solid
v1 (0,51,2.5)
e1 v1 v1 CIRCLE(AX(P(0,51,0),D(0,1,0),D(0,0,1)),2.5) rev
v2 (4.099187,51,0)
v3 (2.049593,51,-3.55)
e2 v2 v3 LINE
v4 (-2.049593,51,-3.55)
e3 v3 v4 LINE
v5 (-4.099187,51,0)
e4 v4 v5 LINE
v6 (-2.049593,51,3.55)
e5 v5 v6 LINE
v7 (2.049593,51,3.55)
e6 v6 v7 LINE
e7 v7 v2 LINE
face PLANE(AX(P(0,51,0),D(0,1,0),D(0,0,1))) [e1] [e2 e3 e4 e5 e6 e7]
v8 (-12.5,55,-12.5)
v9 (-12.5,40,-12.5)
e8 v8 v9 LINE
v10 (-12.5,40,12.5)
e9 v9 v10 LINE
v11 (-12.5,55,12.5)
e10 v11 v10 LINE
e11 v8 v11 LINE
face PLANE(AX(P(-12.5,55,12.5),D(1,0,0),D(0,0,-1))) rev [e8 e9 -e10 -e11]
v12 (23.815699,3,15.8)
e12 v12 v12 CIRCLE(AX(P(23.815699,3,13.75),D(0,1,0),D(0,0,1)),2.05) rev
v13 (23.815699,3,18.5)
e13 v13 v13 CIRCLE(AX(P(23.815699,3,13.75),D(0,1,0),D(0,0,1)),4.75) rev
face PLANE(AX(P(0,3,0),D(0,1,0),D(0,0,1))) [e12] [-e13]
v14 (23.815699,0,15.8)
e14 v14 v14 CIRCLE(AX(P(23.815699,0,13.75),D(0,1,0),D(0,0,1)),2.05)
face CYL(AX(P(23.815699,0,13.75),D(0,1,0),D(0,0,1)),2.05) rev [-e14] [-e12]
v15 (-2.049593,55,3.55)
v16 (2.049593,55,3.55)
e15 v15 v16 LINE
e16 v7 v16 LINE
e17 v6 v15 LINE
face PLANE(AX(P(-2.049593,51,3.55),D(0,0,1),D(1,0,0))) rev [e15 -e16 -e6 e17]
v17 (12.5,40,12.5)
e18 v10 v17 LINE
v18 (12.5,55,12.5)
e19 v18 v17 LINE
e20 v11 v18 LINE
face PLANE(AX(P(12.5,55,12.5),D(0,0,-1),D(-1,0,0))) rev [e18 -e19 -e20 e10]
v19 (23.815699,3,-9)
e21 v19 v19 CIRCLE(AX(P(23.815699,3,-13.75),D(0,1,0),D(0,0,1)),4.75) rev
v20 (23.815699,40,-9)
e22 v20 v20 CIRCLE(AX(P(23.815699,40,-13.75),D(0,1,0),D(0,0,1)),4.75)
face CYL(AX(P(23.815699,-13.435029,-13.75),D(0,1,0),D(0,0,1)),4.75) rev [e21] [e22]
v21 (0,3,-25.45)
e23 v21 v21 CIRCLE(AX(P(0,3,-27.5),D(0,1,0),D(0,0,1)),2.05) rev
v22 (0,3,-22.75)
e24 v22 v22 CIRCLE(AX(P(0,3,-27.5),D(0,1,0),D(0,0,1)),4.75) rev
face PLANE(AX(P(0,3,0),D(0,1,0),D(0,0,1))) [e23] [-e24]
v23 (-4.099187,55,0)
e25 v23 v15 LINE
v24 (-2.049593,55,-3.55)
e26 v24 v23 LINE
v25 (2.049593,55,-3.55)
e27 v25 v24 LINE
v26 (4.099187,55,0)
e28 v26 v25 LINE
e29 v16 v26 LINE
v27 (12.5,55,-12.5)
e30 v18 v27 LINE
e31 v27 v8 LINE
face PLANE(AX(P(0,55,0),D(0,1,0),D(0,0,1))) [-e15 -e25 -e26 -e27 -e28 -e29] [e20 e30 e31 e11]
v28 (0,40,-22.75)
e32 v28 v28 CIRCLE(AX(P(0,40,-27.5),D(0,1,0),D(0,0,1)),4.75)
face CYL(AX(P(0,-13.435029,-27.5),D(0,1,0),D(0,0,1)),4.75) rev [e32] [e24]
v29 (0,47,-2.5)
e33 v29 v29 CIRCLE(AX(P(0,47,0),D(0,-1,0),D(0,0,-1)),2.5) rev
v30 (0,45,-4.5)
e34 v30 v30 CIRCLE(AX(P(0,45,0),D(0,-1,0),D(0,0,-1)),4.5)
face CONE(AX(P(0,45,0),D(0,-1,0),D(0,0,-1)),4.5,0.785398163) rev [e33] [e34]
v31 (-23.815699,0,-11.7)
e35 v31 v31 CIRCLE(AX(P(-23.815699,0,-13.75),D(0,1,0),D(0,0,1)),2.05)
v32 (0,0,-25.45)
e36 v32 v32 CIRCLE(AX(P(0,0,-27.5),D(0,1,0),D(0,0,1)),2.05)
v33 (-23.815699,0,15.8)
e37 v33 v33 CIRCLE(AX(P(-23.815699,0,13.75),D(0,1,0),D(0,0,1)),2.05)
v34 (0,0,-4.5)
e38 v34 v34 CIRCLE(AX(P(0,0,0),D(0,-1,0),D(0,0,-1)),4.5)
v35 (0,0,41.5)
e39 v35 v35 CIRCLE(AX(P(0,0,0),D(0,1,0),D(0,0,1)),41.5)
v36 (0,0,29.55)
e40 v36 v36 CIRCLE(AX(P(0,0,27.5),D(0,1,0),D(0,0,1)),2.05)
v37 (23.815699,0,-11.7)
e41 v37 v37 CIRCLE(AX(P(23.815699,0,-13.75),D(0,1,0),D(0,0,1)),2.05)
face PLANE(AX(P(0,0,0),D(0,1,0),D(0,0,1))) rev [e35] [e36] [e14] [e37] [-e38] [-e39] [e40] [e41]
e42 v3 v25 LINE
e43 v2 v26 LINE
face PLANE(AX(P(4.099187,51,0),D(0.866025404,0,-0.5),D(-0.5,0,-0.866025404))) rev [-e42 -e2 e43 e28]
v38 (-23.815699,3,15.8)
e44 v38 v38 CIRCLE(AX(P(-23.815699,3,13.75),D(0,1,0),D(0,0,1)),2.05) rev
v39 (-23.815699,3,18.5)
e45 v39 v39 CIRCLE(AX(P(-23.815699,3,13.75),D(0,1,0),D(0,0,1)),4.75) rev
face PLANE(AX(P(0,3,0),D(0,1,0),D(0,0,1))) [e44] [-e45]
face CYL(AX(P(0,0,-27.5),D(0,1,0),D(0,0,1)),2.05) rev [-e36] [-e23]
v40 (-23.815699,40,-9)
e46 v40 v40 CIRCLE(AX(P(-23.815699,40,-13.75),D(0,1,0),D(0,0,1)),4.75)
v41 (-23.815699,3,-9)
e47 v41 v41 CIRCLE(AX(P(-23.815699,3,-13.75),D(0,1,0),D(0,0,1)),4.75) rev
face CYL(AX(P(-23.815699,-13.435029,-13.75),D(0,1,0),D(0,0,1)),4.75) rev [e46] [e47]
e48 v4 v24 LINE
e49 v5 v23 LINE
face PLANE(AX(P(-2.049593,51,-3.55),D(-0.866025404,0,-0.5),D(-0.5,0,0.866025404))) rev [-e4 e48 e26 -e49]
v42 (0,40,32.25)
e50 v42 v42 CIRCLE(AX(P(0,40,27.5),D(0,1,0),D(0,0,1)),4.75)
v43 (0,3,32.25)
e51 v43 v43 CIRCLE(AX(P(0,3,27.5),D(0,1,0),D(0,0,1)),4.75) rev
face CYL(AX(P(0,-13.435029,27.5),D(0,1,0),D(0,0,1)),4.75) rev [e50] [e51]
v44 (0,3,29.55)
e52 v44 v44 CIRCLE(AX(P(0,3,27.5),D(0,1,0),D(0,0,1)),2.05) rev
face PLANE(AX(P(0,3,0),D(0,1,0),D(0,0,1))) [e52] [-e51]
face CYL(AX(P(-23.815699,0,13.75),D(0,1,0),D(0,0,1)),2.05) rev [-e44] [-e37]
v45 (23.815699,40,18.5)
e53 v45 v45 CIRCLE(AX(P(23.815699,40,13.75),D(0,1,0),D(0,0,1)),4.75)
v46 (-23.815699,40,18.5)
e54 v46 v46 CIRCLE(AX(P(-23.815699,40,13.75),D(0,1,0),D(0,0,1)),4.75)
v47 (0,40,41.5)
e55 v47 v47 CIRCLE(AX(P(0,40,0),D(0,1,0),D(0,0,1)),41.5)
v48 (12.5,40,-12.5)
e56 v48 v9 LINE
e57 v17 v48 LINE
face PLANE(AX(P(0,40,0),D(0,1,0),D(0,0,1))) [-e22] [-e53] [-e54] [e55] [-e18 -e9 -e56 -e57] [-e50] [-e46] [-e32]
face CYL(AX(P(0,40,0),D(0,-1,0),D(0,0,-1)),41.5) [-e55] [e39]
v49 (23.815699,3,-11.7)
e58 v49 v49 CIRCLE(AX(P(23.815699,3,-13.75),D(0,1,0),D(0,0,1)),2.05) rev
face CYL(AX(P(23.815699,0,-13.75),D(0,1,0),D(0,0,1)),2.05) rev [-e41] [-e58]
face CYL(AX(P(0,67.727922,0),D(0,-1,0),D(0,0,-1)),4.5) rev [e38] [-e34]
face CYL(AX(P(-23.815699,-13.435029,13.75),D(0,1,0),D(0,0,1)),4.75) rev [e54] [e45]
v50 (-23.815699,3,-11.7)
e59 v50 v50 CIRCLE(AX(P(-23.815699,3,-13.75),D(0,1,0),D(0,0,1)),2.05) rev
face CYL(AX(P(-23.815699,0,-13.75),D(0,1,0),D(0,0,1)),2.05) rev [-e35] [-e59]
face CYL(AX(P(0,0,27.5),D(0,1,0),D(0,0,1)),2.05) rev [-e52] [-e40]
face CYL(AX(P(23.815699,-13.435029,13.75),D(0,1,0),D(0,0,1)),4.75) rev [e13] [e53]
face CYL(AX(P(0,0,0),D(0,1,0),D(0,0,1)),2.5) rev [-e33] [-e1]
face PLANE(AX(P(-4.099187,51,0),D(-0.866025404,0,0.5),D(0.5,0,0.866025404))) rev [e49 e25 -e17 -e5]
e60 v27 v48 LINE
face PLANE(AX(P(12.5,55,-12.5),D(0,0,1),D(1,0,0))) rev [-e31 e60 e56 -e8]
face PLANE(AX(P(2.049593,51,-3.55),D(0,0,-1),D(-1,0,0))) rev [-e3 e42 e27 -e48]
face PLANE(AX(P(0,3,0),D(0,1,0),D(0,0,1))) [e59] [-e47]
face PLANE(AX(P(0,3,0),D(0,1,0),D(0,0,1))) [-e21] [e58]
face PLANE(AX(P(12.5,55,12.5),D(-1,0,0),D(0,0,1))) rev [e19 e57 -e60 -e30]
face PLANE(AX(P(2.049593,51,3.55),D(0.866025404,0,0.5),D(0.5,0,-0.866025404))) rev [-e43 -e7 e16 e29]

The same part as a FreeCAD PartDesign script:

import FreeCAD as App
import Part
import Sketcher
Q = App.Units.Quantity


def add_polygon(sketch, points):
    """Adds a closed chain of lines whose ends are joined by coincident constraints."""
    first, n = sketch.GeometryCount, len(points)
    for a, b in zip(points, points[1:] + points[:1]):
        sketch.addGeometry(Part.LineSegment(App.Vector(*a, 0), App.Vector(*b, 0)), False)
    for i in range(n):
        sketch.addConstraint(Sketcher.Constraint("Coincident", first + i, 2, first + (i + 1) % n, 1))

doc = App.newDocument("Part")
body = doc.addObject("PartDesign::Body", "Body")

sketch1 = body.newObject("Sketcher::SketchObject", "Sketch")
sketch1.AttachmentSupport = (doc.getObject("XZ_Plane"), [""])
sketch1.MapMode = "FlatFace"
sketch1.addGeometry(Part.Circle(App.Vector(0, 0, 0), App.Vector(0, 0, 1), 42), False)
sketch1.addConstraint([
    Sketcher.Constraint("Coincident", 0, 3, -1, 1),
    Sketcher.Constraint("Diameter", 0, 83.0),
])
pad1 = body.newObject("PartDesign::Pad", "Pad")
pad1.Profile = sketch1
pad1.Length = 40
pad1.Reversed = True

sketch2 = body.newObject("Sketcher::SketchObject", "Sketch001")
sketch2.AttachmentSupport = (doc.getObject("XZ_Plane"), [""])
sketch2.MapMode = "FlatFace"
sketch2.AttachmentOffset = App.Placement(App.Vector(0, 0, -40), App.Rotation())
sketch2.addGeometry([
    Part.Circle(App.Vector(0, -27.5, 0), App.Vector(0, 0, 1), 2),
    Part.Circle(App.Vector(23.8, -13.8, 0), App.Vector(0, 0, 1), 2),
    Part.Circle(App.Vector(23.8, 13.8, 0), App.Vector(0, 0, 1), 2),
    Part.Circle(App.Vector(0, 27.5, 0), App.Vector(0, 0, 1), 2),
    Part.Circle(App.Vector(-23.8, 13.8, 0), App.Vector(0, 0, 1), 2),
    Part.Circle(App.Vector(-23.8, -13.8, 0), App.Vector(0, 0, 1), 2),
], False)
sketch2.addConstraint([
    Sketcher.Constraint("Equal", 0, 1),
    Sketcher.Constraint("Equal", 1, 2),
    Sketcher.Constraint("Equal", 2, 3),
    Sketcher.Constraint("Equal", 3, 4),
    Sketcher.Constraint("Equal", 4, 5),
    Sketcher.Constraint("Symmetric", 0, 3, 3, 3, -1, 1),
    Sketcher.Constraint("Symmetric", 1, 3, 4, 3, -1, 1),
    Sketcher.Constraint("Symmetric", 2, 3, 5, 3, -1, 1),
    Sketcher.Constraint("Symmetric", 2, 3, 4, 3, -2),
    Sketcher.Constraint("PointOnObject", 0, 3, -2),
    Sketcher.Constraint("Diameter", 0, 4.1),
    Sketcher.Constraint("DistanceY", 0, 3, 3, 3, 55.0),
    Sketcher.Constraint("DistanceY", 1, 3, 2, 3, 27.5),
    Sketcher.Constraint("DistanceX", -1, 1, 1, 3, 23.815699),
])
pocket1 = body.newObject("PartDesign::Pocket", "Pocket")
pocket1.Profile = sketch2
pocket1.Type = "ThroughAll"
pocket1.Reversed = True

sketch3 = body.newObject("Sketcher::SketchObject", "Sketch002")
sketch3.AttachmentSupport = (doc.getObject("XZ_Plane"), [""])
sketch3.MapMode = "FlatFace"
sketch3.AttachmentOffset = App.Placement(App.Vector(0, 0, -40), App.Rotation())
sketch3.addGeometry([
    Part.Circle(App.Vector(0, -27.5, 0), App.Vector(0, 0, 1), 4.8),
    Part.Circle(App.Vector(23.8, -13.8, 0), App.Vector(0, 0, 1), 4.8),
    Part.Circle(App.Vector(23.8, 13.8, 0), App.Vector(0, 0, 1), 4.8),
    Part.Circle(App.Vector(0, 27.5, 0), App.Vector(0, 0, 1), 4.8),
    Part.Circle(App.Vector(-23.8, 13.8, 0), App.Vector(0, 0, 1), 4.8),
    Part.Circle(App.Vector(-23.8, -13.8, 0), App.Vector(0, 0, 1), 4.8),
], False)
sketch3.addConstraint([
    Sketcher.Constraint("Equal", 0, 1),
    Sketcher.Constraint("Equal", 1, 2),
    Sketcher.Constraint("Equal", 2, 3),
    Sketcher.Constraint("Equal", 3, 4),
    Sketcher.Constraint("Equal", 4, 5),
    Sketcher.Constraint("Symmetric", 0, 3, 3, 3, -1, 1),
    Sketcher.Constraint("Symmetric", 1, 3, 4, 3, -1, 1),
    Sketcher.Constraint("Symmetric", 2, 3, 5, 3, -1, 1),
    Sketcher.Constraint("Symmetric", 2, 3, 4, 3, -2),
    Sketcher.Constraint("PointOnObject", 0, 3, -2),
    Sketcher.Constraint("Diameter", 0, 9.5),
    Sketcher.Constraint("DistanceY", 0, 3, 3, 3, 55.0),
    Sketcher.Constraint("DistanceY", 1, 3, 2, 3, 27.5),
    Sketcher.Constraint("DistanceX", -1, 1, 1, 3, 23.815699),
])
pocket2 = body.newObject("PartDesign::Pocket", "Pocket001")
pocket2.Profile = sketch3
pocket2.Length = 37
pocket2.Reversed = True

sketch4 = body.newObject("Sketcher::SketchObject", "Sketch003")
sketch4.AttachmentSupport = (doc.getObject("XZ_Plane"), [""])
sketch4.MapMode = "FlatFace"
sketch4.AttachmentOffset = App.Placement(App.Vector(0, 0, -40), App.Rotation())
add_polygon(sketch4, [(-12, -12), (-12, 12), (12, 12), (12, -12)])
sketch4.addConstraint([
    Sketcher.Constraint("Vertical", 0),
    Sketcher.Constraint("Horizontal", 1),
    Sketcher.Constraint("Vertical", 2),
    Sketcher.Constraint("Horizontal", 3),
    Sketcher.Constraint("Symmetric", 0, 2, 2, 2, -1, 1),
    Sketcher.Constraint("Equal", 3, 0),
    Sketcher.Constraint("DistanceX", 1, 1, 1, 2, 25.0),
])
pad2 = body.newObject("PartDesign::Pad", "Pad001")
pad2.Profile = sketch4
pad2.Length = 15
pad2.Reversed = True

sketch5 = body.newObject("Sketcher::SketchObject", "Sketch004")
sketch5.AttachmentSupport = (doc.getObject("XZ_Plane"), [""])
sketch5.MapMode = "FlatFace"
sketch5.addGeometry(Part.Circle(App.Vector(0, 0, 0), App.Vector(0, 0, 1), 4.5), False)
sketch5.addConstraint([
    Sketcher.Constraint("Coincident", 0, 3, -1, 1),
    Sketcher.Constraint("Diameter", 0, 9.0),
])
pocket3 = body.newObject("PartDesign::Pocket", "Pocket002")
pocket3.Profile = sketch5
pocket3.Length = 45

sketch6 = body.newObject("Sketcher::SketchObject", "Sketch005")
sketch6.AttachmentSupport = (doc.getObject("YZ_Plane"), [""])
sketch6.MapMode = "FlatFace"
add_polygon(sketch6, [(45, 0), (45, -4.5), (49.5, 0)])
sketch6.addConstraint([
    Sketcher.Constraint("Vertical", 0),
    Sketcher.Constraint("Horizontal", 2),
    Sketcher.Constraint("PointOnObject", 1, 2, -1),
    Sketcher.Constraint("Equal", 2, 0),
    Sketcher.Constraint("DistanceX", 2, 2, 2, 1, 4.5),
    Sketcher.Constraint("DistanceX", -1, 1, 0, 2, 45.0),
])
groove = body.newObject("PartDesign::Groove", "Groove")
groove.Profile = sketch6
groove.ReferenceAxis = (sketch6, ["H_Axis"])
groove.Angle = 360

sketch7 = body.newObject("Sketcher::SketchObject", "Sketch006")
sketch7.AttachmentSupport = (doc.getObject("XZ_Plane"), [""])
sketch7.MapMode = "FlatFace"
sketch7.AttachmentOffset = App.Placement(App.Vector(0, 0, -55), App.Rotation())
sketch7.addGeometry(Part.Circle(App.Vector(0, 0, 0), App.Vector(0, 0, 1), 2.5), False)
sketch7.addConstraint([
    Sketcher.Constraint("Coincident", 0, 3, -1, 1),
    Sketcher.Constraint("Diameter", 0, 5.0),
])
pocket4 = body.newObject("PartDesign::Pocket", "Pocket003")
pocket4.Profile = sketch7
pocket4.Type = "ThroughAll"
pocket4.Reversed = True

sketch8 = body.newObject("Sketcher::SketchObject", "Sketch007")
sketch8.AttachmentSupport = (doc.getObject("XZ_Plane"), [""])
sketch8.MapMode = "FlatFace"
sketch8.AttachmentOffset = App.Placement(App.Vector(0, 0, -55), App.Rotation())
add_polygon(sketch8, [(-4.1, 0), (-2, 3.5), (2, 3.5), (4.1, 0), (2, -3.5), (-2, -3.5)])
sketch8.addConstraint([
    Sketcher.Constraint("Horizontal", 1),
    Sketcher.Constraint("Horizontal", 4),
    Sketcher.Constraint("Symmetric", 0, 2, 3, 2, -1, 1),
    Sketcher.Constraint("Symmetric", 2, 2, 5, 2, -1, 1),
    Sketcher.Constraint("PointOnObject", 2, 2, -1),
    Sketcher.Constraint("Parallel", 2, 5),
    Sketcher.Constraint("Vertical", 1, 2, 3, 2),
    Sketcher.Constraint("Angle", 0, Q("60 deg")),
    Sketcher.Constraint("DistanceY", 3, 2, 1, 2, 7.1),
    Sketcher.Constraint("DistanceX", 1, 1, 1, 2, 4.099187),
])
pocket5 = body.newObject("PartDesign::Pocket", "Pocket004")
pocket5.Profile = sketch8
pocket5.Length = 4
pocket5.Reversed = True

doc.recompute()
